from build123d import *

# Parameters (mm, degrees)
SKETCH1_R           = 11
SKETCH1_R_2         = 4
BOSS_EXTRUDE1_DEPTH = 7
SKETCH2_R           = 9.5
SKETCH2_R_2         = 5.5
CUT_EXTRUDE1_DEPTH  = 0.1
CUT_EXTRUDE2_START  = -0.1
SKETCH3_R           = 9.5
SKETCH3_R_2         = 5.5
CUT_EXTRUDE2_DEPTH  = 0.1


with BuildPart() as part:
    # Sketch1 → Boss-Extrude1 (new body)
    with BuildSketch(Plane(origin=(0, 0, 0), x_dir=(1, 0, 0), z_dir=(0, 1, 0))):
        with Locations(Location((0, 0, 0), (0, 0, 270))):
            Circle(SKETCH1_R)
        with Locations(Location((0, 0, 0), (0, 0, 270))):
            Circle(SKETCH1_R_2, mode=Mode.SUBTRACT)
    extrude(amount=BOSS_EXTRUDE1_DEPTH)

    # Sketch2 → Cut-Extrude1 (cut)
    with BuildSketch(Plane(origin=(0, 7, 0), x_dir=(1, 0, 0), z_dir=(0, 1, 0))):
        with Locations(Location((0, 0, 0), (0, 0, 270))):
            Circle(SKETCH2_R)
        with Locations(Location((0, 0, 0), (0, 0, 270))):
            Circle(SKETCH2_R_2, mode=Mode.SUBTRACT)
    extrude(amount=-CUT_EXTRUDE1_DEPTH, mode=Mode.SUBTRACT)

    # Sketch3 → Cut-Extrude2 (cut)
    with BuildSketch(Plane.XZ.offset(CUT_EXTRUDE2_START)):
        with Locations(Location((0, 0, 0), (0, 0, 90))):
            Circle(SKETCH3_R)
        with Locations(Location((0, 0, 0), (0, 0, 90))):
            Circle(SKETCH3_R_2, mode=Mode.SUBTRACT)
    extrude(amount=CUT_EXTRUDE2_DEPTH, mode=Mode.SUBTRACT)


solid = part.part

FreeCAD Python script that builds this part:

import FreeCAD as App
import Part
import Sketcher
from FreeCAD import Vector

doc = App.newDocument("Part")
params = doc.addObject("Spreadsheet::Sheet", "Params")
for row, (alias, value) in enumerate([
    ("sketch1_diameter", "22 mm"),
    ("sketch1_diameter2", "8 mm"),
    ("pad1_length", "7 mm"),
    ("sketch2_diameter", "19 mm"),
    ("sketch2_diameter2", "11 mm"),
    ("pocket1_length", "0.1 mm"),
    ("sketch3_diameter", "19 mm"),
    ("sketch3_diameter2", "11 mm"),
    ("pocket2_length", "0.1 mm"),
], start=1):
    params.set(f"A{row}", alias)
    params.set(f"B{row}", "=" + value)
    params.setAlias(f"B{row}", alias)

body = doc.addObject("PartDesign::Body", "Body")

sketch1 = body.newObject("Sketcher::SketchObject", "Sketch")
sketch1.AttachmentSupport = (doc.getObject("XZ_Plane"), [""])
sketch1.MapMode = "FlatFace"
sketch1.addGeometry([
    Part.Circle(Vector(0, 0, 0), Vector(0, 0, 1), 11),
    Part.Circle(Vector(0, 0, 0), Vector(0, 0, 1), 4),
], False)
sketch1.addConstraint([
    Sketcher.Constraint("Coincident", 0, 3, -1, 1),
    Sketcher.Constraint("Coincident", 1, 3, -1, 1),
    Sketcher.Constraint("Diameter", 0, 22.0),
    Sketcher.Constraint("Diameter", 1, 8.0),
])
sketch1.setExpression("Constraints[2]", "Params.sketch1_diameter")
sketch1.setExpression("Constraints[3]", "Params.sketch1_diameter2")
pad1 = body.newObject("PartDesign::Pad", "Pad")
pad1.Profile = sketch1
pad1.setExpression("Length", "Params.pad1_length")
pad1.Reversed = True

sketch2 = body.newObject("Sketcher::SketchObject", "Sketch001")
sketch2.AttachmentSupport = (doc.getObject("XZ_Plane"), [""])
sketch2.MapMode = "FlatFace"
sketch2.AttachmentOffset = App.Placement(Vector(0, 0, -7), App.Rotation())
sketch2.addGeometry([
    Part.Circle(Vector(0, 0, 0), Vector(0, 0, 1), 10),
    Part.Circle(Vector(0, 0, 0), Vector(0, 0, 1), 6),
], False)
sketch2.addConstraint([
    Sketcher.Constraint("Coincident", 0, 3, -1, 1),
    Sketcher.Constraint("Coincident", 1, 3, -1, 1),
    Sketcher.Constraint("Diameter", 0, 19.0),
    Sketcher.Constraint("Diameter", 1, 11.0),
])
sketch2.setExpression("Constraints[2]", "Params.sketch2_diameter")
sketch2.setExpression("Constraints[3]", "Params.sketch2_diameter2")
pocket1 = body.newObject("PartDesign::Pocket", "Pocket")
pocket1.Profile = sketch2
pocket1.setExpression("Length", "Params.pocket1_length")
pocket1.Reversed = True

sketch3 = body.newObject("Sketcher::SketchObject", "Sketch002")
sketch3.AttachmentSupport = (doc.getObject("XZ_Plane"), [""])
sketch3.MapMode = "FlatFace"
sketch3.AttachmentOffset = App.Placement(Vector(0, 0, -0.1), App.Rotation())
sketch3.addGeometry([
    Part.Circle(Vector(0, 0, 0), Vector(0, 0, 1), 10),
    Part.Circle(Vector(0, 0, 0), Vector(0, 0, 1), 6),
], False)
sketch3.addConstraint([
    Sketcher.Constraint("Coincident", 0, 3, -1, 1),
    Sketcher.Constraint("Coincident", 1, 3, -1, 1),
    Sketcher.Constraint("Diameter", 0, 19.0),
    Sketcher.Constraint("Diameter", 1, 11.0),
])
sketch3.setExpression("Constraints[2]", "Params.sketch3_diameter")
sketch3.setExpression("Constraints[3]", "Params.sketch3_diameter2")
pocket2 = body.newObject("PartDesign::Pocket", "Pocket001")
pocket2.Profile = sketch3
pocket2.setExpression("Length", "Params.pocket2_length")
pocket2.Reversed = True

doc.recompute()
